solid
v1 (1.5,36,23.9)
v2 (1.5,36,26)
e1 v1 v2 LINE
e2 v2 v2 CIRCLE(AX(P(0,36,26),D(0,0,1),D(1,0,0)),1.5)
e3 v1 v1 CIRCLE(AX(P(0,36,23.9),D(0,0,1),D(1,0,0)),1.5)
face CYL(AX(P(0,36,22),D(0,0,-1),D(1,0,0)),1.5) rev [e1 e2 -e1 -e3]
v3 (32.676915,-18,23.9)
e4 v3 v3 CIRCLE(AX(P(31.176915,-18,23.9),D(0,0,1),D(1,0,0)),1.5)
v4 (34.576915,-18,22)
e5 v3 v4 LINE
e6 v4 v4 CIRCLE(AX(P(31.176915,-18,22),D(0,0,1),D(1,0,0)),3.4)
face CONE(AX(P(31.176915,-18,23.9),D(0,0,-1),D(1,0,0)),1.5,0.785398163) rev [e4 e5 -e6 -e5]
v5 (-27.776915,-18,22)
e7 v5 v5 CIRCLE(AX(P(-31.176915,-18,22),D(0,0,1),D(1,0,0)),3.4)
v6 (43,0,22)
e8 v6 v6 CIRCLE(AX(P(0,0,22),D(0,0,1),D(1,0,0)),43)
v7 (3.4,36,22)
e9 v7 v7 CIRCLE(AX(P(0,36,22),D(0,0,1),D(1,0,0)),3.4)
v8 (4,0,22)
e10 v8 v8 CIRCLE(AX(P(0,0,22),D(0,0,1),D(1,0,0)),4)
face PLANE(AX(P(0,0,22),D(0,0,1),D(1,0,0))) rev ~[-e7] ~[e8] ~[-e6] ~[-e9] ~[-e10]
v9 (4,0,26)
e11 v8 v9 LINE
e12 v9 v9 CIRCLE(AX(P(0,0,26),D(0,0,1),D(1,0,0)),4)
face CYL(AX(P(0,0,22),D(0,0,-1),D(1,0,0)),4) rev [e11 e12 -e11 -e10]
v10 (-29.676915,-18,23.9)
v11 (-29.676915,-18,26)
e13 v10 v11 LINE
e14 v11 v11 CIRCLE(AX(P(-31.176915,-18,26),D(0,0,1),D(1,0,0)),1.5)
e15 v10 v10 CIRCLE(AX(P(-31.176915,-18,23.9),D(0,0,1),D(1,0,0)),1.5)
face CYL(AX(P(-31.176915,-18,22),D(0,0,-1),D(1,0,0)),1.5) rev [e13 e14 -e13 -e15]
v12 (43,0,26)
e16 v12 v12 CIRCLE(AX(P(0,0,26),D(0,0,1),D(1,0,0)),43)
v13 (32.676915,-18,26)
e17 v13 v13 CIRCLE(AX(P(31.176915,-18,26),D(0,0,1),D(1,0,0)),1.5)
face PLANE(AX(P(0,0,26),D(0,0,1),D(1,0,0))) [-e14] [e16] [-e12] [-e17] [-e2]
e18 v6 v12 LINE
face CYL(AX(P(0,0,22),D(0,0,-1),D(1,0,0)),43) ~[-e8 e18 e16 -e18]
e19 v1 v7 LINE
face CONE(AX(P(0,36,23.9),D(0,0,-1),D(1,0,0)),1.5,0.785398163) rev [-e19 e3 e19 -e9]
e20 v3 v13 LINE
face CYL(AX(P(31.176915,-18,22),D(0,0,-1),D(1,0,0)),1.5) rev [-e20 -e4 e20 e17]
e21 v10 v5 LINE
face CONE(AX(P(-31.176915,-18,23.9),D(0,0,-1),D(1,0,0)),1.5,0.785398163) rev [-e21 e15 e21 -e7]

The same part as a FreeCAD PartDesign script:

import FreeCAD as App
import Part
import Sketcher

V = App.Vector
Q = App.Units.Quantity


def edges_at(feature, points):
    """Names of the edges that pass closest to the given points."""
    edges = feature.Shape.Edges
    near = lambda p: min(range(len(edges)), key=lambda i: edges[i].distToShape(Part.Vertex(*p))[0])
    return sorted({f"Edge{near(p) + 1}" for p in points})

doc = App.newDocument("Part")
body = doc.addObject("PartDesign::Body", "Body")

sketch1 = doc.addObject("Sketcher::SketchObject", "Sketch")
body.addObject(sketch1)
sketch1.AttachmentSupport = (doc.XY_Plane, [""])
sketch1.MapMode = "FlatFace"
sketch1.AttachmentOffset = App.Placement(V(0, 0, 22), App.Rotation())
sketch1.addGeometry([
    Part.Circle(V(0, 0, 0), V(0, 0, 1), 43),
    Part.Circle(V(-31.2, -18, 0), V(0, 0, 1), 1.5),
    Part.Circle(V(31.2, -18, 0), V(0, 0, 1), 1.5),
    Part.Circle(V(0, 0, 0), V(0, 0, 1), 4),
    Part.Circle(V(0, 36, 0), V(0, 0, 1), 1.5),
], False)
sketch1.addConstraint([
    Sketcher.Constraint("Coincident", 0, 3, -1, 1),
    Sketcher.Constraint("Coincident", 3, 3, -1, 1),
    Sketcher.Constraint("Equal", 1, 2),
    Sketcher.Constraint("Equal", 2, 4),
    Sketcher.Constraint("Symmetric", 1, 3, 2, 3, -2),
    Sketcher.Constraint("PointOnObject", 4, 3, -2),
    Sketcher.Constraint("Diameter", 0, Q("86 mm")),
    Sketcher.Constraint("Diameter", 1, Q("3 mm")),
    Sketcher.Constraint("Diameter", 3, Q("8 mm")),
    Sketcher.Constraint("DistanceY", 1, 3, -1, 1, Q("18 mm")),
    Sketcher.Constraint("DistanceY", -1, 1, 4, 3, Q("36 mm")),
    Sketcher.Constraint("DistanceX", 1, 3, 2, 3, Q("62.35383 mm")),
])
pad1 = doc.addObject("PartDesign::Pad", "Pad")
body.addObject(pad1)
pad1.Profile = sketch1
pad1.Length = 4
doc.recompute()

chamfer = doc.addObject("PartDesign::Chamfer", "Chamfer")
body.addObject(chamfer)
chamfer.Base = (pad1, edges_at(pad1, [(-32.677, -18, 22), (29.677, -18, 22), (-1.5, 36, 22)]))
chamfer.Size = 1.9

doc.recompute()
